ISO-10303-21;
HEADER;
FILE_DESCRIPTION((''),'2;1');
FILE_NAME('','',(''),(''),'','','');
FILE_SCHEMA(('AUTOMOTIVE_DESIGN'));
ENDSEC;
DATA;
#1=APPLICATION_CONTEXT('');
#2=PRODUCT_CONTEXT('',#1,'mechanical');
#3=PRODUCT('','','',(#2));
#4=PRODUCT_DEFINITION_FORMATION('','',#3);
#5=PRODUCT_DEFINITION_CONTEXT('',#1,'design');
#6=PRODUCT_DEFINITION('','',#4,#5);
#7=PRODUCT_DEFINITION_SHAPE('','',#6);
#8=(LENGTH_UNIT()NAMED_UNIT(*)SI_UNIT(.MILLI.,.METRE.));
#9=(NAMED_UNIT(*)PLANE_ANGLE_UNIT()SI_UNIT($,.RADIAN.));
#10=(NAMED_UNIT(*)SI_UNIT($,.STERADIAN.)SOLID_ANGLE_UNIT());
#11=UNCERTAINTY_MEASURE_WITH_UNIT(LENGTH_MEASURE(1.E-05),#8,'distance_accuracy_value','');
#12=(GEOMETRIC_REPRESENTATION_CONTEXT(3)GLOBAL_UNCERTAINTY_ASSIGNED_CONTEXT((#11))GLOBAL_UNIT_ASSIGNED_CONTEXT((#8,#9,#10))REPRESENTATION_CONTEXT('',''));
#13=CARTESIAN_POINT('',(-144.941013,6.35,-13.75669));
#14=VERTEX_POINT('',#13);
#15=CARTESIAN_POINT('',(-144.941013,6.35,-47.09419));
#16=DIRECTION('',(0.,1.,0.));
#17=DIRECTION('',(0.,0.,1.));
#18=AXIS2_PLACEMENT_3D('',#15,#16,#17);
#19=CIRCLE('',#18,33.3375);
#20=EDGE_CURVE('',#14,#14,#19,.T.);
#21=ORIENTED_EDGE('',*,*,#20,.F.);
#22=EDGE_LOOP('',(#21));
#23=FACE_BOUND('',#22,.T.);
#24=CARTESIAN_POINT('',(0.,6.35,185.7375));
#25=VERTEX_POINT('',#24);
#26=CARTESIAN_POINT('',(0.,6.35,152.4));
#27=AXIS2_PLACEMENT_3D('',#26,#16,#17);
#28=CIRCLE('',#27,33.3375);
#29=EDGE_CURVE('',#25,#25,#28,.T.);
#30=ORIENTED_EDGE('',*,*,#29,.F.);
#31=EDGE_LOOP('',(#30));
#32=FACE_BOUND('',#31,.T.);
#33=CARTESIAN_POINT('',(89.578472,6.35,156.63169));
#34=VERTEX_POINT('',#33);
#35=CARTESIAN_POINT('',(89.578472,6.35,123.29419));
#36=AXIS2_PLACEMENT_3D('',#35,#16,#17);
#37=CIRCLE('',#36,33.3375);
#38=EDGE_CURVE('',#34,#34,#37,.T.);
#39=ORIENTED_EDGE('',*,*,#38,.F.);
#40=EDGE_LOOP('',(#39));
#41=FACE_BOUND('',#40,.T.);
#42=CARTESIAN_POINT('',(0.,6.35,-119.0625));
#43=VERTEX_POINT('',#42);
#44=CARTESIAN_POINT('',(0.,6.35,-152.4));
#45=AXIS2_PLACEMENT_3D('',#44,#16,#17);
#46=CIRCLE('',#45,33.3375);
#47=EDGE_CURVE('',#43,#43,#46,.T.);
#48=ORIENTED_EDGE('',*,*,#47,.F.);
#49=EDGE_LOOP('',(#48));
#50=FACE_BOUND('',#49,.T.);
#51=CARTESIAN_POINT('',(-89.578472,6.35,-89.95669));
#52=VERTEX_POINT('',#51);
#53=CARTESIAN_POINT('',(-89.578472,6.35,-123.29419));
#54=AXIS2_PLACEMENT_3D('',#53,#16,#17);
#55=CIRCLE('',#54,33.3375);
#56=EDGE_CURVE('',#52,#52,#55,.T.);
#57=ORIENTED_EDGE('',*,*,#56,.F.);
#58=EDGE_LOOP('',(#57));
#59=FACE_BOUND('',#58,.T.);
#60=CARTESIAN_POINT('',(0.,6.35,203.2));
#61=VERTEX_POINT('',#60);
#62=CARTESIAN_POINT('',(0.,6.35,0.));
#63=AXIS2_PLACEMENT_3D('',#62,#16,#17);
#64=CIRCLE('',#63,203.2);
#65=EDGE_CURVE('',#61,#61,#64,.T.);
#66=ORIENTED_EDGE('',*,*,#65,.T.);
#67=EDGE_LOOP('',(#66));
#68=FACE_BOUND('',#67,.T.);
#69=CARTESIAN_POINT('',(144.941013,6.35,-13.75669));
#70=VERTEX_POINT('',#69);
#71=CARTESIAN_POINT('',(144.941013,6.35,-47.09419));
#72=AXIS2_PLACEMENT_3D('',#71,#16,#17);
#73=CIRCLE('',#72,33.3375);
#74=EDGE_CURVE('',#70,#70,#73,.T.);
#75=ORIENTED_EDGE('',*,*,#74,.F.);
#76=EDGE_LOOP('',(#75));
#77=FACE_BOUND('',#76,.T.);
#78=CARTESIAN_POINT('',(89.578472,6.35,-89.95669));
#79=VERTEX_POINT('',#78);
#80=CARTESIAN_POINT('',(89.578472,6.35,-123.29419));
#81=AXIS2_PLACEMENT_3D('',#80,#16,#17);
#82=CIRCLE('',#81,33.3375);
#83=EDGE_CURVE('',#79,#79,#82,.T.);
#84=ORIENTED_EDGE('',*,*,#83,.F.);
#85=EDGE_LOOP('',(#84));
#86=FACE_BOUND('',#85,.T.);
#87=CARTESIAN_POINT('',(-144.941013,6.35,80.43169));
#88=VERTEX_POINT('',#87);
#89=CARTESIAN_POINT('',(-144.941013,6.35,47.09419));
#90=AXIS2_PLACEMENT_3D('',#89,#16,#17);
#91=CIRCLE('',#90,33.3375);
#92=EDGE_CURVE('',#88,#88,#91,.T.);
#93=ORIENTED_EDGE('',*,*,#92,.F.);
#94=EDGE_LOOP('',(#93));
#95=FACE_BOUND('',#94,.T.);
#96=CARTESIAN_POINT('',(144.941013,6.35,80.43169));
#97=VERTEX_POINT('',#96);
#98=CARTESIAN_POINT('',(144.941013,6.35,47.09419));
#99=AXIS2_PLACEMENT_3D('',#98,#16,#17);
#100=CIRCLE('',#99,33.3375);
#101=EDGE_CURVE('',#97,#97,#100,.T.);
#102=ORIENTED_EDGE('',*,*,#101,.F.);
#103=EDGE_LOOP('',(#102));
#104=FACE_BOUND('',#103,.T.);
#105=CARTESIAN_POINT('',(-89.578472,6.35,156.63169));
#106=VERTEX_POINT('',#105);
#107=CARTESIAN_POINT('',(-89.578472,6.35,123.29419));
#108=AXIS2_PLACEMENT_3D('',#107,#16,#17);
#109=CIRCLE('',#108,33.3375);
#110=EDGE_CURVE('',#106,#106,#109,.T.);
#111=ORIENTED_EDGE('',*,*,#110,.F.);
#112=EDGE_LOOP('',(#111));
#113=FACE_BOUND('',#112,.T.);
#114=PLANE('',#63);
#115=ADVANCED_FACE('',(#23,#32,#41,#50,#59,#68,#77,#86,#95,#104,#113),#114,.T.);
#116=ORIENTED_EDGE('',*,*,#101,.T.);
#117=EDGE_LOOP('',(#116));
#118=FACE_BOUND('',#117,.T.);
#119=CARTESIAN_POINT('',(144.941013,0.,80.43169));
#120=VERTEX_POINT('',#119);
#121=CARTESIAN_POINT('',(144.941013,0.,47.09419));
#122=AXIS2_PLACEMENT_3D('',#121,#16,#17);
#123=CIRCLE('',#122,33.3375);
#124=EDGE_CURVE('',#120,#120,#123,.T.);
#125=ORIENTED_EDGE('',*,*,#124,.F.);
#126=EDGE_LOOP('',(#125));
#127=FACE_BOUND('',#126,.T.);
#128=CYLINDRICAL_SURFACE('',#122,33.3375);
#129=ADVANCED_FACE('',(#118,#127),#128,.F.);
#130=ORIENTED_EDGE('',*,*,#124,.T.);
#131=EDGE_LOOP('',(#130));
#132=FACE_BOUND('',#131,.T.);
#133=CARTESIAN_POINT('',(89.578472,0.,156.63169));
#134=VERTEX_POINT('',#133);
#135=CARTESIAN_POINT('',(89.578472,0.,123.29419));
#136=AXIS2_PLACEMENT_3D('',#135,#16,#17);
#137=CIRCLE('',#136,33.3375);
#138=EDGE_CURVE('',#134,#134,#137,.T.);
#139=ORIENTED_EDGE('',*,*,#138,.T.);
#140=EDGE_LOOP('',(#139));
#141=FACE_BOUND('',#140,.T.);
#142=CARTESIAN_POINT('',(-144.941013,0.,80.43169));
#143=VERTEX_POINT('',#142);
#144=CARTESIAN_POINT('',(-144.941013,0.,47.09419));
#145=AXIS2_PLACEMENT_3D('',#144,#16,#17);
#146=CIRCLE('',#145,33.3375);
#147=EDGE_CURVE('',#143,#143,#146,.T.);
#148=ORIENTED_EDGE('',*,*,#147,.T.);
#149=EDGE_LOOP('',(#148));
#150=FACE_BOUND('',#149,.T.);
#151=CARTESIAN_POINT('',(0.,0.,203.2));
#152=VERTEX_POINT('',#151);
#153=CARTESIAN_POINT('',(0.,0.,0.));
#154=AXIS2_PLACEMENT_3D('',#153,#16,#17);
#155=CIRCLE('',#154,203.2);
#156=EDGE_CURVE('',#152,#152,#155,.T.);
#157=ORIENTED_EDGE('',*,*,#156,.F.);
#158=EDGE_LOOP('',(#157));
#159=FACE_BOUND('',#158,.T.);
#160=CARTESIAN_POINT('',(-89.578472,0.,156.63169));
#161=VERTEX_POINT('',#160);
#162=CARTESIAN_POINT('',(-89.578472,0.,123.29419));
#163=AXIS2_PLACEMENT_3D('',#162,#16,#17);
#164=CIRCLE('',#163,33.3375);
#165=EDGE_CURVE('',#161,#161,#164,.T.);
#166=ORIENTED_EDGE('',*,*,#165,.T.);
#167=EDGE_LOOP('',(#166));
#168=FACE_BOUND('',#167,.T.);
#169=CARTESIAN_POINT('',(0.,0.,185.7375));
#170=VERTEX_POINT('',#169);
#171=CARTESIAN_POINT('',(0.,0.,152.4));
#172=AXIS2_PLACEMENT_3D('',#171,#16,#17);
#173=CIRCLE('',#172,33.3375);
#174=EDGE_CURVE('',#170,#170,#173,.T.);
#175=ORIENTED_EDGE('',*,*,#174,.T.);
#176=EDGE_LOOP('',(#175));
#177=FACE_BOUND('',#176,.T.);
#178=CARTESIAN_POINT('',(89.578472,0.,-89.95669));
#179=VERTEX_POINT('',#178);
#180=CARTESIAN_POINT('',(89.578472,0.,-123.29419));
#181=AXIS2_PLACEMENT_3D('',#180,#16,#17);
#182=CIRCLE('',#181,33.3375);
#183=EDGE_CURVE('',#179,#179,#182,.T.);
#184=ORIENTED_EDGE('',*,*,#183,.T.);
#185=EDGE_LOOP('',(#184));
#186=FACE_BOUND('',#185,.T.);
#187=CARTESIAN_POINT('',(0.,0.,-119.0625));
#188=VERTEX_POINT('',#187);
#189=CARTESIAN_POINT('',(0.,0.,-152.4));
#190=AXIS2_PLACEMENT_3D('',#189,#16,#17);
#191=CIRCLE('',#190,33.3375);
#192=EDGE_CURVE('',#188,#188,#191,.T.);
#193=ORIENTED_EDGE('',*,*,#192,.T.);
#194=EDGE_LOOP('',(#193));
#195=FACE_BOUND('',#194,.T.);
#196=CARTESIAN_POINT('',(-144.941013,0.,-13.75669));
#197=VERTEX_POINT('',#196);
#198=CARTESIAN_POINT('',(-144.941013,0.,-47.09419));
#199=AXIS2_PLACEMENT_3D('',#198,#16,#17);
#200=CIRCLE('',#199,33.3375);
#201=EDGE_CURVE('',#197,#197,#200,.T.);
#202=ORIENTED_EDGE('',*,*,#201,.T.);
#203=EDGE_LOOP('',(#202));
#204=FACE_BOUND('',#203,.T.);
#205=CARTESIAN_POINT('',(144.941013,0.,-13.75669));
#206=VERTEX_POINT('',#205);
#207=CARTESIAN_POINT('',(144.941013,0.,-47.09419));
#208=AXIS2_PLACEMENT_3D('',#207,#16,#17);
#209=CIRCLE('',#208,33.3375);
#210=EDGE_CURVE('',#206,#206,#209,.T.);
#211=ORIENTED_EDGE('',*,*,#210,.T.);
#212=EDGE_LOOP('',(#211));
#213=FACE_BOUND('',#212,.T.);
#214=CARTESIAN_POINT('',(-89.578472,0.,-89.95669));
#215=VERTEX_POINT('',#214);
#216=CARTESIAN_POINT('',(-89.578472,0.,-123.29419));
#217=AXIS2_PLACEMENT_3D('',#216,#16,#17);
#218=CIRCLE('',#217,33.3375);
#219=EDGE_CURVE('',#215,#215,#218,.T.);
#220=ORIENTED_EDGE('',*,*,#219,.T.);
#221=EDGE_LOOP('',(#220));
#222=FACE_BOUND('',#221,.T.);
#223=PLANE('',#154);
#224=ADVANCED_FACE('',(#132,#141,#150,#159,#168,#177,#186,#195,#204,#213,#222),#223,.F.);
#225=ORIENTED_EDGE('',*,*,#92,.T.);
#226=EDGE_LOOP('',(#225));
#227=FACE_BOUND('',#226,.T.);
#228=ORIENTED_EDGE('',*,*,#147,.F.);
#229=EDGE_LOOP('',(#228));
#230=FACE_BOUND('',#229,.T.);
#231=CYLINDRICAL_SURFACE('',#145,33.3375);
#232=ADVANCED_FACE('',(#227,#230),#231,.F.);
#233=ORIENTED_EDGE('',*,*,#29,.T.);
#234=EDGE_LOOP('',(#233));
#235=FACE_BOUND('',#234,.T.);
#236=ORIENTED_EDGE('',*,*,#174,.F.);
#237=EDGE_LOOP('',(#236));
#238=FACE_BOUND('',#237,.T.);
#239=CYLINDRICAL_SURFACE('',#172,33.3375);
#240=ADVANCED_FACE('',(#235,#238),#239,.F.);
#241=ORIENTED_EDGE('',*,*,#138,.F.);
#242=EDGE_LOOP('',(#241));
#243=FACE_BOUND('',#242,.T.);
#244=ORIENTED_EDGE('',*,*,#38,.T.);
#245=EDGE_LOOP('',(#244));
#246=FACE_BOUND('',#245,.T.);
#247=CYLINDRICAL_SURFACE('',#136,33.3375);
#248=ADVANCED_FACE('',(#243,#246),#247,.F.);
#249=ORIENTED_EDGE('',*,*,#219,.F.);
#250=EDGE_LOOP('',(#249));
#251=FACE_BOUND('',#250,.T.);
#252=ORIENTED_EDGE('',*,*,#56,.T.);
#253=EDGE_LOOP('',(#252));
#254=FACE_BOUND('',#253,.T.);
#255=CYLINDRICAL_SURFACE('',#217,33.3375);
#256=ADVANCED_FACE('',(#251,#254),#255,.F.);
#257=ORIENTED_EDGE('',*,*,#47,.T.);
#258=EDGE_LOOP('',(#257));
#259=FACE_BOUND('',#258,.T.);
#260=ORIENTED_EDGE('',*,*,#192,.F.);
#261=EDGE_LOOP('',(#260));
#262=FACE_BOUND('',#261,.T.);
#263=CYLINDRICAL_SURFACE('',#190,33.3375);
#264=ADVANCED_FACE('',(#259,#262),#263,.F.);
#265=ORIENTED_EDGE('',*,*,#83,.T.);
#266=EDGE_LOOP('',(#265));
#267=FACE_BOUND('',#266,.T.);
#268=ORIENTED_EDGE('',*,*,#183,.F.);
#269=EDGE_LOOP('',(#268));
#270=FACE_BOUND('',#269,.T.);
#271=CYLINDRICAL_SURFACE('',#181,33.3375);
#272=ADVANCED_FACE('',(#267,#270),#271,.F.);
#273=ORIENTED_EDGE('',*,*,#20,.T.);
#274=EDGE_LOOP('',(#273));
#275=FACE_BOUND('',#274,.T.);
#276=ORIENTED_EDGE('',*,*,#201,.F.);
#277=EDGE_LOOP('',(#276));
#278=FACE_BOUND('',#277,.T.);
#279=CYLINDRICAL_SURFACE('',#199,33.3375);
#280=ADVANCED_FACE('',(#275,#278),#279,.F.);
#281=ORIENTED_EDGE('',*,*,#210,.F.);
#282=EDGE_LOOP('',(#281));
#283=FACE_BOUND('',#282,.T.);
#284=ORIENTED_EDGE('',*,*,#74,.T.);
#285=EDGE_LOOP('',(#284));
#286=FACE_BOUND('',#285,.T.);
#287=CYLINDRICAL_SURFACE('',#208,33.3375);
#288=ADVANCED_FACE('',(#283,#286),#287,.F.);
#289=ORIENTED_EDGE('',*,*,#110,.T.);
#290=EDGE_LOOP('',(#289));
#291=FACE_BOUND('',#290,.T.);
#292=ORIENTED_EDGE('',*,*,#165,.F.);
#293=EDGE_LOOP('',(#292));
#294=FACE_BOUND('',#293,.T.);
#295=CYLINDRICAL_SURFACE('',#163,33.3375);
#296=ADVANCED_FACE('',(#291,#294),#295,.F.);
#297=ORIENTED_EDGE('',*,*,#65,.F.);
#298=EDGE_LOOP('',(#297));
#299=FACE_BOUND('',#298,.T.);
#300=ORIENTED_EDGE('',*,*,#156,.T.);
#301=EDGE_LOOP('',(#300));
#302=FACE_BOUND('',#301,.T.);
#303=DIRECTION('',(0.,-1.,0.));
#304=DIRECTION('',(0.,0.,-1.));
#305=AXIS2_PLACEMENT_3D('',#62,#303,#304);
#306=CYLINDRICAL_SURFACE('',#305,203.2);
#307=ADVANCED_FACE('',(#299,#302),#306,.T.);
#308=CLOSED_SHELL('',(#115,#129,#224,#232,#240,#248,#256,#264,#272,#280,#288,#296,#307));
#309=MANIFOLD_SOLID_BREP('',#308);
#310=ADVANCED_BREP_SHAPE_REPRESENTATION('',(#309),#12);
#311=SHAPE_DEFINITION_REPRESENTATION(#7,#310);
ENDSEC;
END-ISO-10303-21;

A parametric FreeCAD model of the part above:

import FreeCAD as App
import Part
import Sketcher
from FreeCAD import Vector
Q = App.Units.Quantity

doc = App.newDocument("Part")
body = doc.addObject("PartDesign::Body", "Body")

# Sketch on XZ plane
sketch1 = body.newObject("Sketcher::SketchObject", "Sketch")
sketch1.AttachmentSupport = (doc.getObject("XZ_Plane"), [""])
sketch1.MapMode = "FlatFace"
sketch1.addGeometry(Part.Circle(Vector(0, 0, 0), Vector(0, 0, 1), 203), False)
sketch1.addConstraint([
    Sketcher.Constraint("Coincident", 0, 3, -1, 1),
    Sketcher.Constraint("Diameter", 0, Q("16 in")),
])
pad1 = body.newObject("PartDesign::Pad", "Pad")
pad1.Profile = sketch1
pad1.Length = Q("0.25 in")
pad1.Reversed = True

# Sketch on XZ plane
sketch2 = body.newObject("Sketcher::SketchObject", "Sketch001")
sketch2.AttachmentSupport = (doc.getObject("XZ_Plane"), [""])
sketch2.MapMode = "FlatFace"
sketch2.AttachmentOffset = App.Placement(Vector(0, 0, -0.25 * 25.4), App.Rotation())
sketch2.addGeometry([
    Part.Circle(Vector(0, -152, 0), Vector(0, 0, 1), 33),  # 0
    Part.Circle(Vector(90, -123, 0), Vector(0, 0, 1), 33),  # 1
    Part.Circle(Vector(145, -47, 0), Vector(0, 0, 1), 33),  # 2
    Part.Circle(Vector(145, 47, 0), Vector(0, 0, 1), 33),  # 3
    Part.Circle(Vector(90, 123, 0), Vector(0, 0, 1), 33),  # 4
    Part.Circle(Vector(0, 152, 0), Vector(0, 0, 1), 33),  # 5
    Part.Circle(Vector(-90, 123, 0), Vector(0, 0, 1), 33),  # 6
    Part.Circle(Vector(-145, 47, 0), Vector(0, 0, 1), 33),  # 7
    Part.Circle(Vector(-145, -47, 0), Vector(0, 0, 1), 33),  # 8
    Part.Circle(Vector(-90, -123, 0), Vector(0, 0, 1), 33),  # 9
], False)
sketch2.addConstraint([
    Sketcher.Constraint("Equal", 0, 1),
    Sketcher.Constraint("Equal", 1, 2),
    Sketcher.Constraint("Equal", 2, 3),
    Sketcher.Constraint("Equal", 3, 4),
    Sketcher.Constraint("Equal", 4, 5),
    Sketcher.Constraint("Equal", 5, 6),
    Sketcher.Constraint("Equal", 6, 7),
    Sketcher.Constraint("Equal", 7, 8),
    Sketcher.Constraint("Equal", 8, 9),
    Sketcher.Constraint("Symmetric", 0, 3, 5, 3, -1, 1),
    Sketcher.Constraint("Symmetric", 1, 3, 6, 3, -1, 1),
    Sketcher.Constraint("Symmetric", 2, 3, 7, 3, -1, 1),
    Sketcher.Constraint("Symmetric", 3, 3, 8, 3, -1, 1),
    Sketcher.Constraint("Symmetric", 4, 3, 9, 3, -1, 1),
    Sketcher.Constraint("Symmetric", 4, 3, 6, 3, -2),
    Sketcher.Constraint("Symmetric", 3, 3, 7, 3, -2),
    Sketcher.Constraint("PointOnObject", 0, 3, -2),
    Sketcher.Constraint("Diameter", 0, Q("2.625 in")),
    Sketcher.Constraint("DistanceY", 0, 3, -1, 1, Q("6 in")),
    Sketcher.Constraint("DistanceY", 1, 3, 2, 3, Q("3 in")),
    Sketcher.Constraint("DistanceY", 1, 3, -1, 1, Q("123.29419 mm")),
    Sketcher.Constraint("DistanceX", 1, 3, 2, 3, Q("55.362541 mm")),
    Sketcher.Constraint("DistanceX", -1, 1, 1, 3, Q("89.578472 mm")),
])
pocket1 = body.newObject("PartDesign::Pocket", "Pocket")
pocket1.Profile = sketch2
pocket1.Type = "ThroughAll"
pocket1.Reversed = True

doc.recompute()
